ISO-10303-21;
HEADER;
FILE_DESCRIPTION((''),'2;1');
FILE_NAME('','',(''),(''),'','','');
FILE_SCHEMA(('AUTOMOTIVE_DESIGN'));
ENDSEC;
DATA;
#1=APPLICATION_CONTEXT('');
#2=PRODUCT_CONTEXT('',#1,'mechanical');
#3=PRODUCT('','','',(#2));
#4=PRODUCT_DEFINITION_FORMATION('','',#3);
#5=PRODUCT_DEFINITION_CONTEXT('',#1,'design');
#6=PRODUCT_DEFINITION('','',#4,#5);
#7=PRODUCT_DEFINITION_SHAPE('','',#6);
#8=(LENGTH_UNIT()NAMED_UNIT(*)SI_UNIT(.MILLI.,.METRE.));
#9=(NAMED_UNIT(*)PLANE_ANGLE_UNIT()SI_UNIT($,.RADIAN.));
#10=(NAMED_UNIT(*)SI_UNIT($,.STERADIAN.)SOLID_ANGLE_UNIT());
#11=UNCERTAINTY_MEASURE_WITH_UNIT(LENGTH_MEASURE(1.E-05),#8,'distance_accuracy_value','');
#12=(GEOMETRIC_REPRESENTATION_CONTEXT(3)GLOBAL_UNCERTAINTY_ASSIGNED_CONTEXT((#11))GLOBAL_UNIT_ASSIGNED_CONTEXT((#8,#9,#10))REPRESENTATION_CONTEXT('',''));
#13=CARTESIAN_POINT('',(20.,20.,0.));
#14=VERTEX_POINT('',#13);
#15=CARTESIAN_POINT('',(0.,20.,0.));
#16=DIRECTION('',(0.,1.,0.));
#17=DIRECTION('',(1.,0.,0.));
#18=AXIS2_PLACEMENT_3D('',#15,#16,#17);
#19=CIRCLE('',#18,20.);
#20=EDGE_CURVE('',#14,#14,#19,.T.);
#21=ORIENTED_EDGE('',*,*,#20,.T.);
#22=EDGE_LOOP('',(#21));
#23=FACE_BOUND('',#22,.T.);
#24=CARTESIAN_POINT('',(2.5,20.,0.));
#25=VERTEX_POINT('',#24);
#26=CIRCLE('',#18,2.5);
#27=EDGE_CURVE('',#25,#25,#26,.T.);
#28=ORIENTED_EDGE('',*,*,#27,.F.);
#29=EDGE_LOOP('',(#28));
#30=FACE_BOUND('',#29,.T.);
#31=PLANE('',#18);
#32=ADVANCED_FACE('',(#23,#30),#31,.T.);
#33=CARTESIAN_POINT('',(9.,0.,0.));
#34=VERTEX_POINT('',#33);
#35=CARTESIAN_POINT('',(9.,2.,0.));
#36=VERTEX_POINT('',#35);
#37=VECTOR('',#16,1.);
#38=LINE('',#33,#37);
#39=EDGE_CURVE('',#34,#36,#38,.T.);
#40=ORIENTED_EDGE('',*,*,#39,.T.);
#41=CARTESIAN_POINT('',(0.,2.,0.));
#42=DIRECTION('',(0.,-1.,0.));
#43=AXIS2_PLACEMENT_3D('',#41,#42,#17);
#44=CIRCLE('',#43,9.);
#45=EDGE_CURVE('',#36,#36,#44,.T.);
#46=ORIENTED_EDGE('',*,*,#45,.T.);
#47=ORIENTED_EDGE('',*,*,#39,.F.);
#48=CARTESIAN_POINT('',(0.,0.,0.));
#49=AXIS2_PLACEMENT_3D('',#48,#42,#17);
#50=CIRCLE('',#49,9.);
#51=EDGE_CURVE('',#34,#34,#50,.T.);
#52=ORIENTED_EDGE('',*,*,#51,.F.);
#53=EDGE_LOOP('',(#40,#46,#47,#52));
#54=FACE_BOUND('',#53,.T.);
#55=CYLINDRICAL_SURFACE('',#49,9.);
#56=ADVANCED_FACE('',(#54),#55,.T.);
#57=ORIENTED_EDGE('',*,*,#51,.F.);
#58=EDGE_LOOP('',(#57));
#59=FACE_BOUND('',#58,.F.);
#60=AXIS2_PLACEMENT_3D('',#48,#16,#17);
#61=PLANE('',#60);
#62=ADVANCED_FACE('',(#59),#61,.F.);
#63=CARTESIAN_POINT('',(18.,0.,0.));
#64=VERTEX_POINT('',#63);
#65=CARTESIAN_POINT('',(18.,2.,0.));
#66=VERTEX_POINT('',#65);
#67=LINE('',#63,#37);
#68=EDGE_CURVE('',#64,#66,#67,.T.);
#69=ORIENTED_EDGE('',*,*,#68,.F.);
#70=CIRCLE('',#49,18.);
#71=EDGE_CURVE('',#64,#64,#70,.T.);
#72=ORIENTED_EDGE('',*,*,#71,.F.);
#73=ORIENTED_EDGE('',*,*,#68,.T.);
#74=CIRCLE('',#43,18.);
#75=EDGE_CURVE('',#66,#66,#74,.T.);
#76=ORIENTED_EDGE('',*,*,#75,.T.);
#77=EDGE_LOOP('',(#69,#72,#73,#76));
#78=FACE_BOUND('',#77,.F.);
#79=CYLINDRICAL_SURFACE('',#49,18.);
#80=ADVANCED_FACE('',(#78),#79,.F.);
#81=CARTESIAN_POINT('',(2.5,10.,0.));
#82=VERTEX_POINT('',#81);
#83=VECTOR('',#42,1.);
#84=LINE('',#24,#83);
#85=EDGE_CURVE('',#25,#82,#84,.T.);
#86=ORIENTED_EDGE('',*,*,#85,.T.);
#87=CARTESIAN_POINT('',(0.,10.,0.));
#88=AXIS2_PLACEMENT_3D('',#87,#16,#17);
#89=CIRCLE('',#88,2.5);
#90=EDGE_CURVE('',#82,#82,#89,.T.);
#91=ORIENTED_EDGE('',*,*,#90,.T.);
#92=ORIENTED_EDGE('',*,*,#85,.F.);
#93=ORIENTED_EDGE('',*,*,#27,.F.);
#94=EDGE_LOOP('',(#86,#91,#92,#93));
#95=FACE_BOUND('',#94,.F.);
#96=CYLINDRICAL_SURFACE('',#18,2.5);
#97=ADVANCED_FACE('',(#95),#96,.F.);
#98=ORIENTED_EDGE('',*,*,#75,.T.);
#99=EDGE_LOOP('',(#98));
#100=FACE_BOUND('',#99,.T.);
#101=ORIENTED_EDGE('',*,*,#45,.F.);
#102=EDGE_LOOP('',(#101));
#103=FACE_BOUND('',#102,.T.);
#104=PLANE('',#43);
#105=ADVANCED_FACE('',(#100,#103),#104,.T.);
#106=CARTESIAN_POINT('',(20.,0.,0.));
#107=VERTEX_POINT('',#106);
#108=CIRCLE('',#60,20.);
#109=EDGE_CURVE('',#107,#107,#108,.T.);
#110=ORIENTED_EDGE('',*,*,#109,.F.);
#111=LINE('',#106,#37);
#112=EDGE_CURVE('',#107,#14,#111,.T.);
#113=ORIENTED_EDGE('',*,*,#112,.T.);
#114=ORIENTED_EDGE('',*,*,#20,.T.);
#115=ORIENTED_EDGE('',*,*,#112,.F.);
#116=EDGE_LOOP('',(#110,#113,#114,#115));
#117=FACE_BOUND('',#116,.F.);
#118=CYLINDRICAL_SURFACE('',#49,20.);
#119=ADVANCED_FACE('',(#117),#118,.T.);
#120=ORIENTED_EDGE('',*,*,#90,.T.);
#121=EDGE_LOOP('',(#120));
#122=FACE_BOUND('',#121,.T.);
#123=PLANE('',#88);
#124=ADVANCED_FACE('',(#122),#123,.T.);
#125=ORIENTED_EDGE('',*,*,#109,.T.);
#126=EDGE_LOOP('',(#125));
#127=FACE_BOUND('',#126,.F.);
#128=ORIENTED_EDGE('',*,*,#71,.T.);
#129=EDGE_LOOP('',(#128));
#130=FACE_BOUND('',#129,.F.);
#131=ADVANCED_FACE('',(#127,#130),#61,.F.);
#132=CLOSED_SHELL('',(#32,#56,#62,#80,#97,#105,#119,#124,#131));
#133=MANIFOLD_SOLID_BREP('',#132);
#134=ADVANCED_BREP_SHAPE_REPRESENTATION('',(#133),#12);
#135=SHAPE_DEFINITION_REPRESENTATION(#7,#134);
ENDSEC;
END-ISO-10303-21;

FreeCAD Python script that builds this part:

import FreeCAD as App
import Part
import Sketcher

V = App.Vector

doc = App.newDocument("Part")
params = doc.addObject("Spreadsheet::Sheet", "Params")
for row, (alias, value) in enumerate([
    ("sketch1_diameter", "40 mm"),
    ("pad1_length", "20 mm"),
    ("sketch2_diameter", "5 mm"),
    ("pocket1_length", "10 mm"),
    ("sketch3_diameter", "36 mm"),
    ("sketch3_diameter2", "18 mm"),
    ("pocket2_length", "2 mm"),
], start=1):
    params.set(f"A{row}", alias)
    params.set(f"B{row}", "=" + value)
    params.setAlias(f"B{row}", alias)

body = doc.addObject("PartDesign::Body", "Body")

# Sketch on XZ plane
sketch1 = body.newObject("Sketcher::SketchObject", "Sketch")
sketch1.AttachmentSupport = (doc.getObject("XZ_Plane"), [""])
sketch1.MapMode = "FlatFace"
sketch1.addGeometry(Part.Circle(V(0, 0, 0), V(0, 0, 1), 20), False)
sketch1.addConstraint(Sketcher.Constraint("Coincident", 0, 3, -1, 1))
sketch1.addConstraint(Sketcher.Constraint("Diameter", 0, 40.0))
sketch1.setExpression("Constraints[1]", "Params.sketch1_diameter")
pad1 = body.newObject("PartDesign::Pad", "Pad")
pad1.Profile = sketch1
pad1.setExpression("Length", "Params.pad1_length")
pad1.Reversed = True

# Sketch on XZ plane
sketch2 = body.newObject("Sketcher::SketchObject", "Sketch001")
sketch2.AttachmentSupport = (doc.getObject("XZ_Plane"), [""])
sketch2.MapMode = "FlatFace"
sketch2.AttachmentOffset = App.Placement(V(0, 0, -20), App.Rotation())
sketch2.addGeometry(Part.Circle(V(0, 0, 0), V(0, 0, 1), 2.5), False)
sketch2.addConstraint(Sketcher.Constraint("Coincident", 0, 3, -1, 1))
sketch2.addConstraint(Sketcher.Constraint("Diameter", 0, 5.0))
sketch2.setExpression("Constraints[1]", "Params.sketch2_diameter")
pocket1 = body.newObject("PartDesign::Pocket", "Pocket")
pocket1.Profile = sketch2
pocket1.setExpression("Length", "Params.pocket1_length")
pocket1.Reversed = True

# Sketch on XZ plane
sketch3 = body.newObject("Sketcher::SketchObject", "Sketch002")
sketch3.AttachmentSupport = (doc.getObject("XZ_Plane"), [""])
sketch3.MapMode = "FlatFace"
sketch3.addGeometry(Part.Circle(V(0, 0, 0), V(0, 0, 1), 18), False)
sketch3.addGeometry(Part.Circle(V(0, 0, 0), V(0, 0, 1), 9), False)
sketch3.addConstraint(Sketcher.Constraint("Coincident", 0, 3, -1, 1))
sketch3.addConstraint(Sketcher.Constraint("Coincident", 1, 3, -1, 1))
sketch3.addConstraint(Sketcher.Constraint("Diameter", 0, 36.0))
sketch3.addConstraint(Sketcher.Constraint("Diameter", 1, 18.0))
sketch3.setExpression("Constraints[2]", "Params.sketch3_diameter")
sketch3.setExpression("Constraints[3]", "Params.sketch3_diameter2")
pocket2 = body.newObject("PartDesign::Pocket", "Pocket001")
pocket2.Profile = sketch3
pocket2.setExpression("Length", "Params.pocket2_length")

doc.recompute()
